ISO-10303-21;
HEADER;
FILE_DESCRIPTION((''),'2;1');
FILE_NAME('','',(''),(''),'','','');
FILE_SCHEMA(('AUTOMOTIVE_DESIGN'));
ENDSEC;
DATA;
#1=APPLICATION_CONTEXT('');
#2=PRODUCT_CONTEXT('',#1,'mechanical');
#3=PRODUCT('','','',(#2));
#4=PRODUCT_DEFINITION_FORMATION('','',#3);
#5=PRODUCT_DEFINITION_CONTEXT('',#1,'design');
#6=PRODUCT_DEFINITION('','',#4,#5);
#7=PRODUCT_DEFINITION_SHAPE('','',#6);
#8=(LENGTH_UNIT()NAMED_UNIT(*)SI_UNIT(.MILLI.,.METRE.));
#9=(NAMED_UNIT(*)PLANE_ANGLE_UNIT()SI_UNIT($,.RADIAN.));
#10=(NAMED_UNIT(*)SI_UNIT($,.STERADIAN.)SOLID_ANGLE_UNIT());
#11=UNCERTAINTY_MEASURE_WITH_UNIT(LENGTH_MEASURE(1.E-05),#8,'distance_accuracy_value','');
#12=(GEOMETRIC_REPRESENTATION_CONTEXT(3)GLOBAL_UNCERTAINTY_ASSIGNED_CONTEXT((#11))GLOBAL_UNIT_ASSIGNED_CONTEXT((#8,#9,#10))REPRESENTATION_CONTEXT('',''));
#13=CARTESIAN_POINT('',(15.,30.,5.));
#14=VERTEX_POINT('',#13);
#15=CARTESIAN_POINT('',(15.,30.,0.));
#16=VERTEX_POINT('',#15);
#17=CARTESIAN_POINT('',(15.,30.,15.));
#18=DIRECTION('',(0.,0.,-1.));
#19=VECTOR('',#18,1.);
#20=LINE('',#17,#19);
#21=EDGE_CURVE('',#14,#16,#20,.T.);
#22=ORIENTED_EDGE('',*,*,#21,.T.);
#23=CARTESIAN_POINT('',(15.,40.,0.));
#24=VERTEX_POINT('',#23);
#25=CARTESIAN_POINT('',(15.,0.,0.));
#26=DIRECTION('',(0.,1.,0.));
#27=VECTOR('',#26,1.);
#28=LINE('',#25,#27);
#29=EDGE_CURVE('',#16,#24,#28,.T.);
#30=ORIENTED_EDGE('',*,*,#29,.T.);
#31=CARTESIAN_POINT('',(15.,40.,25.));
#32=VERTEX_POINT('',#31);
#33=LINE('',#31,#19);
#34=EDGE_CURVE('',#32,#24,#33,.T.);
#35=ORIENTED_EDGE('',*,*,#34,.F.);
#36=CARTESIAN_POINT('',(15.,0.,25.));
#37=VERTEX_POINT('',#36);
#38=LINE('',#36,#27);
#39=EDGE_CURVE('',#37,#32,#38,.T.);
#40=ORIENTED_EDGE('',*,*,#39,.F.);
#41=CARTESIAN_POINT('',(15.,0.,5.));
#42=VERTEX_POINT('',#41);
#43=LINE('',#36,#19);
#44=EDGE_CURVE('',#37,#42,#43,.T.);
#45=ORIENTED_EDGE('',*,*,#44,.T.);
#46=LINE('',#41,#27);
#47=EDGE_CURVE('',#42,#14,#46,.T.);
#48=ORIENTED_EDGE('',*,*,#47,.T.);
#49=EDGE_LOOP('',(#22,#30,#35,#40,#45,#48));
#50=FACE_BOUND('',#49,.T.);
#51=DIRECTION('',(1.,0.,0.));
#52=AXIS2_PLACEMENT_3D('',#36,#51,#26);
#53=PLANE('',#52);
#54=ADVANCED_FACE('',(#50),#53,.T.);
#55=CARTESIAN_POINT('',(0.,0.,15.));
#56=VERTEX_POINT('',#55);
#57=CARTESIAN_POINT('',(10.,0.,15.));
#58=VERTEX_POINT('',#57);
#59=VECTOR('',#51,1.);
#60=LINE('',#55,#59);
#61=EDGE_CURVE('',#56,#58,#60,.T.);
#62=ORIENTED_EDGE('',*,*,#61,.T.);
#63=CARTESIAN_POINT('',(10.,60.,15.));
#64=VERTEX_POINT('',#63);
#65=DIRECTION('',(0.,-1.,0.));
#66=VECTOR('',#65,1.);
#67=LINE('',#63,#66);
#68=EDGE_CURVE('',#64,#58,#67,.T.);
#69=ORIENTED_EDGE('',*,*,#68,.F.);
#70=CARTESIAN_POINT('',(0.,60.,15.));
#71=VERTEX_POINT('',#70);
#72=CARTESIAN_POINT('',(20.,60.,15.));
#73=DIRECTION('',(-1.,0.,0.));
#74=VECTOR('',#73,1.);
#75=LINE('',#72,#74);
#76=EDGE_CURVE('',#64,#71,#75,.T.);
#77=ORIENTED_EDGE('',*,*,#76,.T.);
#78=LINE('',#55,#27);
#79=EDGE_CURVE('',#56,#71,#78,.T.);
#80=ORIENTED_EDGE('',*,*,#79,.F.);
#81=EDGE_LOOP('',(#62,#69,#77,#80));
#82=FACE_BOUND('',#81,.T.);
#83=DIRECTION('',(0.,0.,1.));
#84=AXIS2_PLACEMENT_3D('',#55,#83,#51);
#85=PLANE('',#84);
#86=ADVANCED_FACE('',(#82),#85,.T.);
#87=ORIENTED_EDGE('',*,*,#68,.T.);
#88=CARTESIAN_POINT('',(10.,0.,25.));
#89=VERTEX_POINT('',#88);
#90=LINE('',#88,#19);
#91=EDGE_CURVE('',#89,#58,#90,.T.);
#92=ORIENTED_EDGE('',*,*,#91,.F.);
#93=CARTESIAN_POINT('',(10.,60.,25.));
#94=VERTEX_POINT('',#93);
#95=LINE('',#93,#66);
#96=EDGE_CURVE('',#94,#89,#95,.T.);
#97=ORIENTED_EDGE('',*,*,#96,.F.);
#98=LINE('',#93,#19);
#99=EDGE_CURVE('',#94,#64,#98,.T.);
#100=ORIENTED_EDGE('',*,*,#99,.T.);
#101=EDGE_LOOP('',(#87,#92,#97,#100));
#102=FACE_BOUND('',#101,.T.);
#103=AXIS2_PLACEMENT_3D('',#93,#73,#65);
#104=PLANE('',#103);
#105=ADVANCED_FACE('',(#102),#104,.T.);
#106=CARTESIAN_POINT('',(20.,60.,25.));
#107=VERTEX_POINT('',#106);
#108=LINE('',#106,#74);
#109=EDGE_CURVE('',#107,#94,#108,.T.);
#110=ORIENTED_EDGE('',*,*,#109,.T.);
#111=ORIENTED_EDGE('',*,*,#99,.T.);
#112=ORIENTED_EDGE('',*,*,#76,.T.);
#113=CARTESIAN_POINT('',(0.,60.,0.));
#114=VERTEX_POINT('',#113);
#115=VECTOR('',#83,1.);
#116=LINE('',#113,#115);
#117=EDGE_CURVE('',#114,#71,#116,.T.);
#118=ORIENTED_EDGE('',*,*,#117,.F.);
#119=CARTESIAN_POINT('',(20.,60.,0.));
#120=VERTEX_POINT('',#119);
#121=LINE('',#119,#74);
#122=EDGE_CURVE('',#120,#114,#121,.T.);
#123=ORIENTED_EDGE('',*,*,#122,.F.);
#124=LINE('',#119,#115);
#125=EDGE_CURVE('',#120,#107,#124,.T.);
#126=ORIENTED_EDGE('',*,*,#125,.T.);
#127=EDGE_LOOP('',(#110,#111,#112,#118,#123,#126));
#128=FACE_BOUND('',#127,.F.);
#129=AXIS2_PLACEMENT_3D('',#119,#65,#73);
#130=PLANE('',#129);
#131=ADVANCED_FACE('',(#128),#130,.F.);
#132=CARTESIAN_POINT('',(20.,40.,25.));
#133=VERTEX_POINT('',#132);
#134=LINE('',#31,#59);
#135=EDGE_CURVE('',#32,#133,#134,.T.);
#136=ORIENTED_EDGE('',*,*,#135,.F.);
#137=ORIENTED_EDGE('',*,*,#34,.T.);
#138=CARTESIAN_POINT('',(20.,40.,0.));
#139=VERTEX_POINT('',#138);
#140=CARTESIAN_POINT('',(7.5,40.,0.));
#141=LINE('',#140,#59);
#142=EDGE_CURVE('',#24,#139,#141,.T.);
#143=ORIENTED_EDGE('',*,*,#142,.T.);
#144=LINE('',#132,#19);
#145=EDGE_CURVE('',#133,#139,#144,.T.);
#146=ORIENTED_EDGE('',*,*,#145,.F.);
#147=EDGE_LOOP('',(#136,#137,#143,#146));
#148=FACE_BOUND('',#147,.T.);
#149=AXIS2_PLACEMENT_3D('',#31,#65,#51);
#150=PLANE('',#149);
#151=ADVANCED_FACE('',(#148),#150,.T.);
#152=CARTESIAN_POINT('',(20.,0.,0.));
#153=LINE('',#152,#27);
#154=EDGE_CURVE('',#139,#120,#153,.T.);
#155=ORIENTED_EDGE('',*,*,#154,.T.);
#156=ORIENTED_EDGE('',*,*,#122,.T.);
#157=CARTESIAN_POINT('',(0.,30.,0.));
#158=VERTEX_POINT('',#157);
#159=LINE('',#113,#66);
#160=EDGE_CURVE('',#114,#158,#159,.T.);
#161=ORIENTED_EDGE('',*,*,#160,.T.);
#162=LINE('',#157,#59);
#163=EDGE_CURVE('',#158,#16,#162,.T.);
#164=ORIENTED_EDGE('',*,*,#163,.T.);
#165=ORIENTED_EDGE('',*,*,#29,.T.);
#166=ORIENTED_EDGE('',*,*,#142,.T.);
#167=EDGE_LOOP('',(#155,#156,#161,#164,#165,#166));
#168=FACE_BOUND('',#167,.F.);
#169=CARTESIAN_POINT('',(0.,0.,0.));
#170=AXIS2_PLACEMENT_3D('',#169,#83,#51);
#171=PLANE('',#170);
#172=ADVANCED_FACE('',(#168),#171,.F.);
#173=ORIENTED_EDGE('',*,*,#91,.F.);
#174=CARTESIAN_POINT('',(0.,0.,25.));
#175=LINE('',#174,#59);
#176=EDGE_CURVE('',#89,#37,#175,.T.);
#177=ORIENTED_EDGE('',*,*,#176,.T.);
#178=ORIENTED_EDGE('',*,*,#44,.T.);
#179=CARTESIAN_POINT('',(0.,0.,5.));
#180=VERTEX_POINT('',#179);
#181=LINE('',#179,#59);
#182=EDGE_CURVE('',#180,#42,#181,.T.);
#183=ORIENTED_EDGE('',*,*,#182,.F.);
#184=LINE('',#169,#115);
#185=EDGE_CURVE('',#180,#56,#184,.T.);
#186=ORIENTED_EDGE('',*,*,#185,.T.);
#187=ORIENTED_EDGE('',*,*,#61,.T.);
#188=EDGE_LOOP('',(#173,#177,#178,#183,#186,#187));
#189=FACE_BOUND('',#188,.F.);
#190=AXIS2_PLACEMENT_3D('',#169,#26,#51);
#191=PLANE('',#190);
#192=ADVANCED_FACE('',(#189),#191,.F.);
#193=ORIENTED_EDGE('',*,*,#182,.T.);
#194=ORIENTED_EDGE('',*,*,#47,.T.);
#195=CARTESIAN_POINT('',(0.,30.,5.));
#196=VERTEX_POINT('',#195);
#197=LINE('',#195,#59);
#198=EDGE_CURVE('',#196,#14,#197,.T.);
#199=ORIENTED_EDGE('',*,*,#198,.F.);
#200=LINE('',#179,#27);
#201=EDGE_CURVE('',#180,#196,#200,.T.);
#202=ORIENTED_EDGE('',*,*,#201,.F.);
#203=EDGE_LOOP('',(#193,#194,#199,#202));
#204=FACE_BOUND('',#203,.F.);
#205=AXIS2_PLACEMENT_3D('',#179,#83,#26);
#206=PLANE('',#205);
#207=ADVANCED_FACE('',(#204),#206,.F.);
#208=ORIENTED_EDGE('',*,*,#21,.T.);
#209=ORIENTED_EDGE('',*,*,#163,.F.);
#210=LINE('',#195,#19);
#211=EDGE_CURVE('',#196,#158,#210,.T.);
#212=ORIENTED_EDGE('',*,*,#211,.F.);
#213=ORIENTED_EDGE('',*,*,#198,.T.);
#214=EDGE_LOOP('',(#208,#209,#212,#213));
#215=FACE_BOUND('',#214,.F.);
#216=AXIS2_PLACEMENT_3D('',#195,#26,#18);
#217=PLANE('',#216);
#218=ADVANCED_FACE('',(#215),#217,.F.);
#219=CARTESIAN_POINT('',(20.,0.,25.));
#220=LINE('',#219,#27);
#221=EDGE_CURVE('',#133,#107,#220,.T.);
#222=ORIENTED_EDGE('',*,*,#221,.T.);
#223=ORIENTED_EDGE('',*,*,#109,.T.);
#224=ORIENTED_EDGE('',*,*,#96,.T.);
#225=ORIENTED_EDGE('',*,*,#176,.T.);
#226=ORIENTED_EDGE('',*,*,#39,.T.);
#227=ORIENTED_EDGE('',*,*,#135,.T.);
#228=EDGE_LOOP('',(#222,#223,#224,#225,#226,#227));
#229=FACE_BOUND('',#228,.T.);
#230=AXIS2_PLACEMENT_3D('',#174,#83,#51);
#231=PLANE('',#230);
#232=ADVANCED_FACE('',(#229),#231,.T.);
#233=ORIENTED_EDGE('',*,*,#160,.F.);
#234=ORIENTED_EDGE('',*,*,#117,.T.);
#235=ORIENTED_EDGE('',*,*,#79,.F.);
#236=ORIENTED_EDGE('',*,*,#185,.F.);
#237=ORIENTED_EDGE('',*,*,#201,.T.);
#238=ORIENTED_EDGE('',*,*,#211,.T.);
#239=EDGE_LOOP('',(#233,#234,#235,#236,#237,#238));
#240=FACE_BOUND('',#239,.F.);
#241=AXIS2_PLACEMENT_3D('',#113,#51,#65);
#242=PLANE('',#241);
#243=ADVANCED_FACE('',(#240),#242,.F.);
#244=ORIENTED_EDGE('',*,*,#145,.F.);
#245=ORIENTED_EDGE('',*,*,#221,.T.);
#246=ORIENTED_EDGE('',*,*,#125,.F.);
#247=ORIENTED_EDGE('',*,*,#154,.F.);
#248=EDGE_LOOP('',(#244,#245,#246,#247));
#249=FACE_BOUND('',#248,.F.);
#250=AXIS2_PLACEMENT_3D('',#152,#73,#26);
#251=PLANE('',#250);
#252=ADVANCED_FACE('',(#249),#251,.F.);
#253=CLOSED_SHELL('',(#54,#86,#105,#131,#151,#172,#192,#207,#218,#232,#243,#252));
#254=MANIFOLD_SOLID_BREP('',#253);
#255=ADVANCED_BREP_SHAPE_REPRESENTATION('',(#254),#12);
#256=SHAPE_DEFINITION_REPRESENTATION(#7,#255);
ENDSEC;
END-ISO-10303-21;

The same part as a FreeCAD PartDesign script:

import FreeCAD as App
import Part
import Sketcher
Q = App.Units.Quantity

doc = App.newDocument("Part")
body = doc.addObject("PartDesign::Body", "Body")

# Sketch on XY plane
sketch1 = body.newObject("Sketcher::SketchObject", "Sketch")
sketch1.AttachmentSupport = (doc.getObject("XY_Plane"), [""])
sketch1.MapMode = "FlatFace"
sketch1.addGeometry([
    Part.LineSegment(App.Vector(0, 60, 0), App.Vector(0, 0, 0)),
    Part.LineSegment(App.Vector(0, 0, 0), App.Vector(20, 0, 0)),
    Part.LineSegment(App.Vector(20, 0, 0), App.Vector(20, 60, 0)),
    Part.LineSegment(App.Vector(20, 60, 0), App.Vector(0, 60, 0)),
], False)
sketch1.addConstraint([
    Sketcher.Constraint("Coincident", 0, 2, 1, 1),
    Sketcher.Constraint("Coincident", 1, 2, 2, 1),
    Sketcher.Constraint("Coincident", 2, 2, 3, 1),
    Sketcher.Constraint("Coincident", 3, 2, 0, 1),
    Sketcher.Constraint("Vertical", 0),
    Sketcher.Constraint("Horizontal", 1),
    Sketcher.Constraint("Vertical", 2),
    Sketcher.Constraint("Horizontal", 3),
    Sketcher.Constraint("Coincident", 0, 2, -1, 1),
    Sketcher.Constraint("DistanceX", 1, 1, 1, 2, Q("20 mm")),
    Sketcher.Constraint("DistanceY", 0, 2, 0, 1, Q("60 mm")),
])
pad1 = body.newObject("PartDesign::Pad", "Pad")
pad1.Profile = sketch1
pad1.Length = 25

# Sketch on XY plane
sketch2 = body.newObject("Sketcher::SketchObject", "Sketch001")
sketch2.AttachmentSupport = (doc.getObject("XY_Plane"), [""])
sketch2.MapMode = "FlatFace"
sketch2.AttachmentOffset = App.Placement(App.Vector(0, 0, 25), App.Rotation())
sketch2.addGeometry([
    Part.LineSegment(App.Vector(10, 0, 0), App.Vector(10, 60, 0)),
    Part.LineSegment(App.Vector(10, 60, 0), App.Vector(0, 60, 0)),
    Part.LineSegment(App.Vector(0, 60, 0), App.Vector(0, 0, 0)),
    Part.LineSegment(App.Vector(0, 0, 0), App.Vector(10, 0, 0)),
], False)
sketch2.addConstraint([
    Sketcher.Constraint("Coincident", 0, 2, 1, 1),
    Sketcher.Constraint("Coincident", 1, 2, 2, 1),
    Sketcher.Constraint("Coincident", 2, 2, 3, 1),
    Sketcher.Constraint("Coincident", 3, 2, 0, 1),
    Sketcher.Constraint("Vertical", 0),
    Sketcher.Constraint("Horizontal", 1),
    Sketcher.Constraint("Vertical", 2),
    Sketcher.Constraint("Horizontal", 3),
    Sketcher.Constraint("Coincident", 2, 2, -1, 1),
    Sketcher.Constraint("DistanceX", 1, 2, 1, 1, Q("10 mm")),
    Sketcher.Constraint("DistanceY", 0, 1, 0, 2, Q("60 mm")),
])
pocket1 = body.newObject("PartDesign::Pocket", "Pocket")
pocket1.Profile = sketch2
pocket1.Length = 10

# Sketch on YZ plane
sketch3 = body.newObject("Sketcher::SketchObject", "Sketch002")
sketch3.AttachmentSupport = (doc.getObject("YZ_Plane"), [""])
sketch3.MapMode = "FlatFace"
sketch3.addGeometry([
    Part.LineSegment(App.Vector(30, 0, 0), App.Vector(0, 0, 0)),
    Part.LineSegment(App.Vector(0, 0, 0), App.Vector(0, 5, 0)),
    Part.LineSegment(App.Vector(0, 5, 0), App.Vector(30, 5, 0)),
    Part.LineSegment(App.Vector(30, 5, 0), App.Vector(30, 0, 0)),
], False)
sketch3.addConstraint([
    Sketcher.Constraint("Coincident", 0, 2, 1, 1),
    Sketcher.Constraint("Coincident", 1, 2, 2, 1),
    Sketcher.Constraint("Coincident", 2, 2, 3, 1),
    Sketcher.Constraint("Coincident", 3, 2, 0, 1),
    Sketcher.Constraint("Horizontal", 0),
    Sketcher.Constraint("Vertical", 1),
    Sketcher.Constraint("Horizontal", 2),
    Sketcher.Constraint("Vertical", 3),
    Sketcher.Constraint("Coincident", 0, 2, -1, 1),
    Sketcher.Constraint("DistanceX", 0, 2, 0, 1, Q("30 mm")),
    Sketcher.Constraint("DistanceY", 1, 1, 1, 2, Q("5 mm")),
])
pocket2 = body.newObject("PartDesign::Pocket", "Pocket001")
pocket2.Profile = sketch3
pocket2.Type = "ThroughAll"
pocket2.Reversed = True

# Sketch on XY plane
sketch4 = body.newObject("Sketcher::SketchObject", "Sketch003")
sketch4.AttachmentSupport = (doc.getObject("XY_Plane"), [""])
sketch4.MapMode = "FlatFace"
sketch4.AttachmentOffset = App.Placement(App.Vector(0, 0, 25), App.Rotation())
sketch4.addGeometry([
    Part.LineSegment(App.Vector(15, 0, 0), App.Vector(20, 0, 0)),
    Part.LineSegment(App.Vector(20, 0, 0), App.Vector(20, 40, 0)),
    Part.LineSegment(App.Vector(20, 40, 0), App.Vector(15, 40, 0)),
    Part.LineSegment(App.Vector(15, 40, 0), App.Vector(15, 0, 0)),
], False)
sketch4.addConstraint([
    Sketcher.Constraint("Coincident", 0, 2, 1, 1),
    Sketcher.Constraint("Coincident", 1, 2, 2, 1),
    Sketcher.Constraint("Coincident", 2, 2, 3, 1),
    Sketcher.Constraint("Coincident", 3, 2, 0, 1),
    Sketcher.Constraint("Horizontal", 0),
    Sketcher.Constraint("Vertical", 1),
    Sketcher.Constraint("Horizontal", 2),
    Sketcher.Constraint("Vertical", 3),
    Sketcher.Constraint("PointOnObject", 0, 2, -1),
    Sketcher.Constraint("DistanceX", 0, 1, 0, 2, Q("5 mm")),
    Sketcher.Constraint("DistanceY", 1, 1, 1, 2, Q("40 mm")),
    Sketcher.Constraint("DistanceX", -1, 1, 0, 2, Q("20 mm")),
])
pocket3 = body.newObject("PartDesign::Pocket", "Pocket002")
pocket3.Profile = sketch4
pocket3.Type = "ThroughAll"

doc.recompute()
